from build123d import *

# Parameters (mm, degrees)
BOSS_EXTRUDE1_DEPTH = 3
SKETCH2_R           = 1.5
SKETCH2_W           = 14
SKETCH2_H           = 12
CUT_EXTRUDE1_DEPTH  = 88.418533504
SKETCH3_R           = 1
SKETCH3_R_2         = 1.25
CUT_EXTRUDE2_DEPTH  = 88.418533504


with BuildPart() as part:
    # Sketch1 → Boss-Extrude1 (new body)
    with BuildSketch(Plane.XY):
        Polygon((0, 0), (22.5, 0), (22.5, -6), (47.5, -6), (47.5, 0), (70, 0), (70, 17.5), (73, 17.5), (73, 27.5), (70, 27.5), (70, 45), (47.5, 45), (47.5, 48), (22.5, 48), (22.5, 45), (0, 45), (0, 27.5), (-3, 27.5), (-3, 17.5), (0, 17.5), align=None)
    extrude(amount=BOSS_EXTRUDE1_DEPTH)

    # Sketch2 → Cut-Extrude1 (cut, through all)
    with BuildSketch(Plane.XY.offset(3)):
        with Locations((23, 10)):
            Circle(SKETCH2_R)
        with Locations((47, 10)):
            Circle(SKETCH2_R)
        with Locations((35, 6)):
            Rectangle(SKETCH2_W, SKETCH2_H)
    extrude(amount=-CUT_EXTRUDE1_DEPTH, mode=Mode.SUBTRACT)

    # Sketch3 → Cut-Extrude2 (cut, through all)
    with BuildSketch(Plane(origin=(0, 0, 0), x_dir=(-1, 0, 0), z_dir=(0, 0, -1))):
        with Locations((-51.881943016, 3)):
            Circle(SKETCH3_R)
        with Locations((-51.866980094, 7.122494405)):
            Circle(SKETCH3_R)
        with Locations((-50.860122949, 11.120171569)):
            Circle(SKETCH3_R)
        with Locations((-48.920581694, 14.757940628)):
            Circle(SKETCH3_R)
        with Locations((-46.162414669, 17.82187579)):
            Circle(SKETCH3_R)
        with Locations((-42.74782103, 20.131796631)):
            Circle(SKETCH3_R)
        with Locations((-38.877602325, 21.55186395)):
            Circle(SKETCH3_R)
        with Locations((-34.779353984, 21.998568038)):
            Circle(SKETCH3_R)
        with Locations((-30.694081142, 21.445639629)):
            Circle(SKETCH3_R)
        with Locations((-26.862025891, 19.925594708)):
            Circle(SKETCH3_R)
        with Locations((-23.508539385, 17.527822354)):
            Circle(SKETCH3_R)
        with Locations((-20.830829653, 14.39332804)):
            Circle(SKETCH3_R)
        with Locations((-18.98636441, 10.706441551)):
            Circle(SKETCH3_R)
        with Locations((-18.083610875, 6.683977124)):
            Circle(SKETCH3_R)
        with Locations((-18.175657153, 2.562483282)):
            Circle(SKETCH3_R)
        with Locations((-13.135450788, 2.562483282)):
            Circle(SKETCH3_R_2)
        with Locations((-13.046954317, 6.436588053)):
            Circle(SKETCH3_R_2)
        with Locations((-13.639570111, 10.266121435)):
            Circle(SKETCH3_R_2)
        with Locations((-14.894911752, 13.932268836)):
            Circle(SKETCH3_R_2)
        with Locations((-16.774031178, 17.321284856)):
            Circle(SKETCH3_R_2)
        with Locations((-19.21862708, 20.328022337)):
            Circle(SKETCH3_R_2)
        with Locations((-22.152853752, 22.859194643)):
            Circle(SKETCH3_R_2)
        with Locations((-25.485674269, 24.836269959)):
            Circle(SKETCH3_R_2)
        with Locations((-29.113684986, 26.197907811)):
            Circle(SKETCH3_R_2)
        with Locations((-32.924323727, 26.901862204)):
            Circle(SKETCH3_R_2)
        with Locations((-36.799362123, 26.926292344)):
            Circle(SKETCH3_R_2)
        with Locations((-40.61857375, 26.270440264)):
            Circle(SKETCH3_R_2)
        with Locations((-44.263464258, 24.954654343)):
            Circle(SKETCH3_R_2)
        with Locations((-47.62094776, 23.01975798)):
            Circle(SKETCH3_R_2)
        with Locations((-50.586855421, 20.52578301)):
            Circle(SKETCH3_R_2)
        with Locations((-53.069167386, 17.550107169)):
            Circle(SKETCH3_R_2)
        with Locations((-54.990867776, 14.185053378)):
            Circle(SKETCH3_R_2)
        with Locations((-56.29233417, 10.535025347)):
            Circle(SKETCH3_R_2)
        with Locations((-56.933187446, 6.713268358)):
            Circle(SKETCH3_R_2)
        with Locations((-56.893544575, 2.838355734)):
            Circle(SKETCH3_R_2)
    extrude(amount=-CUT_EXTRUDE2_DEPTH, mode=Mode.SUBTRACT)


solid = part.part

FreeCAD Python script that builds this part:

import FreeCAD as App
import Part
import Sketcher
Q = App.Units.Quantity

doc = App.newDocument("Part")
body = doc.addObject("PartDesign::Body", "Body")

# Sketch on XY plane
sketch1 = doc.addObject("Sketcher::SketchObject", "Sketch")
body.addObject(sketch1)
sketch1.AttachmentSupport = (doc.XY_Plane, [""])
sketch1.MapMode = "FlatFace"
sketch1.addGeometry([
    Part.LineSegment(App.Vector(0, 0, 0), App.Vector(22.5, 0, 0)),  # 0
    Part.LineSegment(App.Vector(22.5, 0, 0), App.Vector(22.5, -6, 0)),  # 1
    Part.LineSegment(App.Vector(22.5, -6, 0), App.Vector(47.5, -6, 0)),  # 2
    Part.LineSegment(App.Vector(47.5, -6, 0), App.Vector(47.5, 0, 0)),  # 3
    Part.LineSegment(App.Vector(47.5, 0, 0), App.Vector(70, 0, 0)),  # 4
    Part.LineSegment(App.Vector(70, 0, 0), App.Vector(70, 17.5, 0)),  # 5
    Part.LineSegment(App.Vector(70, 17.5, 0), App.Vector(73, 17.5, 0)),  # 6
    Part.LineSegment(App.Vector(73, 17.5, 0), App.Vector(73, 27.5, 0)),  # 7
    Part.LineSegment(App.Vector(73, 27.5, 0), App.Vector(70, 27.5, 0)),  # 8
    Part.LineSegment(App.Vector(70, 27.5, 0), App.Vector(70, 45, 0)),  # 9
    Part.LineSegment(App.Vector(70, 45, 0), App.Vector(47.5, 45, 0)),  # 10
    Part.LineSegment(App.Vector(47.5, 45, 0), App.Vector(47.5, 48, 0)),  # 11
    Part.LineSegment(App.Vector(47.5, 48, 0), App.Vector(22.5, 48, 0)),  # 12
    Part.LineSegment(App.Vector(22.5, 48, 0), App.Vector(22.5, 45, 0)),  # 13
    Part.LineSegment(App.Vector(22.5, 45, 0), App.Vector(0, 45, 0)),  # 14
    Part.LineSegment(App.Vector(0, 45, 0), App.Vector(0, 27.5, 0)),  # 15
    Part.LineSegment(App.Vector(0, 27.5, 0), App.Vector(-3, 27.5, 0)),  # 16
    Part.LineSegment(App.Vector(-3, 27.5, 0), App.Vector(-3, 17.5, 0)),  # 17
    Part.LineSegment(App.Vector(-3, 17.5, 0), App.Vector(0, 17.5, 0)),  # 18
    Part.LineSegment(App.Vector(0, 17.5, 0), App.Vector(0, 0, 0)),  # 19
], False)
sketch1.addConstraint([
    Sketcher.Constraint("Coincident", 0, 2, 1, 1),
    Sketcher.Constraint("Coincident", 1, 2, 2, 1),
    Sketcher.Constraint("Coincident", 2, 2, 3, 1),
    Sketcher.Constraint("Coincident", 3, 2, 4, 1),
    Sketcher.Constraint("Coincident", 4, 2, 5, 1),
    Sketcher.Constraint("Coincident", 5, 2, 6, 1),
    Sketcher.Constraint("Coincident", 6, 2, 7, 1),
    Sketcher.Constraint("Coincident", 7, 2, 8, 1),
    Sketcher.Constraint("Coincident", 8, 2, 9, 1),
    Sketcher.Constraint("Coincident", 9, 2, 10, 1),
    Sketcher.Constraint("Coincident", 10, 2, 11, 1),
    Sketcher.Constraint("Coincident", 11, 2, 12, 1),
    Sketcher.Constraint("Coincident", 12, 2, 13, 1),
    Sketcher.Constraint("Coincident", 13, 2, 14, 1),
    Sketcher.Constraint("Coincident", 14, 2, 15, 1),
    Sketcher.Constraint("Coincident", 15, 2, 16, 1),
    Sketcher.Constraint("Coincident", 16, 2, 17, 1),
    Sketcher.Constraint("Coincident", 17, 2, 18, 1),
    Sketcher.Constraint("Coincident", 18, 2, 19, 1),
    Sketcher.Constraint("Coincident", 19, 2, 0, 1),
    Sketcher.Constraint("Horizontal", 0),
    Sketcher.Constraint("Vertical", 1),
    Sketcher.Constraint("Horizontal", 2),
    Sketcher.Constraint("Vertical", 3),
    Sketcher.Constraint("Horizontal", 4),
    Sketcher.Constraint("Vertical", 5),
    Sketcher.Constraint("Horizontal", 6),
    Sketcher.Constraint("Vertical", 7),
    Sketcher.Constraint("Horizontal", 8),
    Sketcher.Constraint("Vertical", 9),
    Sketcher.Constraint("Horizontal", 10),
    Sketcher.Constraint("Vertical", 11),
    Sketcher.Constraint("Horizontal", 12),
    Sketcher.Constraint("Vertical", 13),
    Sketcher.Constraint("Horizontal", 14),
    Sketcher.Constraint("Vertical", 15),
    Sketcher.Constraint("Horizontal", 16),
    Sketcher.Constraint("Vertical", 17),
    Sketcher.Constraint("Horizontal", 18),
    Sketcher.Constraint("Vertical", 19),
    Sketcher.Constraint("Coincident", 19, 2, -1, 1),
    Sketcher.Constraint("PointOnObject", 3, 2, -1),
    Sketcher.Constraint("PointOnObject", 14, 2, -2),
    Sketcher.Constraint("Horizontal", 10, 2, 13, 2),
    Sketcher.Constraint("Horizontal", 8, 2, 15, 2),
    Sketcher.Constraint("Horizontal", 6, 2, 17, 2),
    Sketcher.Constraint("Vertical", 5, 2, 8, 2),
    Sketcher.Constraint("Vertical", 3, 2, 10, 2),
    Sketcher.Constraint("Vertical", 1, 2, 12, 2),
    Sketcher.Constraint("Equal", 0, 4),
    Sketcher.Constraint("Equal", 8, 16),
    Sketcher.Constraint("Equal", 5, 9),
    Sketcher.Constraint("Equal", 18, 11),
    Sketcher.Constraint("DistanceX", 2, 1, 2, 2, Q("25 mm")),
    Sketcher.Constraint("DistanceX", 6, 1, 6, 2, Q("3 mm")),
    Sketcher.Constraint("DistanceY", 1, 2, 1, 1, Q("6 mm")),
    Sketcher.Constraint("DistanceY", 7, 1, 7, 2, Q("10 mm")),
    Sketcher.Constraint("DistanceX", 0, 1, 0, 2, Q("22.5 mm")),
    Sketcher.Constraint("DistanceY", 5, 1, 5, 2, Q("17.5 mm")),
])
pad1 = doc.addObject("PartDesign::Pad", "Pad")
body.addObject(pad1)
pad1.Profile = sketch1
pad1.Length = 3

# Sketch on XY plane
sketch2 = doc.addObject("Sketcher::SketchObject", "Sketch001")
body.addObject(sketch2)
sketch2.AttachmentSupport = (doc.XY_Plane, [""])
sketch2.MapMode = "FlatFace"
sketch2.AttachmentOffset = App.Placement(App.Vector(0, 0, 3), App.Rotation())
sketch2.addGeometry([
    Part.Circle(App.Vector(23, 10, 0), App.Vector(0, 0, 1), 1.5),  # 0
    Part.Circle(App.Vector(47, 10, 0), App.Vector(0, 0, 1), 1.5),  # 1
    Part.LineSegment(App.Vector(28, 12, 0), App.Vector(28, 0, 0)),  # 2
    Part.LineSegment(App.Vector(28, 0, 0), App.Vector(42, 0, 0)),  # 3
    Part.LineSegment(App.Vector(42, 0, 0), App.Vector(42, 12, 0)),  # 4
    Part.LineSegment(App.Vector(42, 12, 0), App.Vector(28, 12, 0)),  # 5
], False)
sketch2.addConstraint([
    Sketcher.Constraint("Coincident", 2, 2, 3, 1),
    Sketcher.Constraint("Coincident", 3, 2, 4, 1),
    Sketcher.Constraint("Coincident", 4, 2, 5, 1),
    Sketcher.Constraint("Coincident", 5, 2, 2, 1),
    Sketcher.Constraint("Vertical", 2),
    Sketcher.Constraint("Horizontal", 3),
    Sketcher.Constraint("Vertical", 4),
    Sketcher.Constraint("Horizontal", 5),
    Sketcher.Constraint("Equal", 0, 1),
    Sketcher.Constraint("PointOnObject", 2, 2, -1),
    Sketcher.Constraint("Horizontal", 0, 3, 1, 3),
    Sketcher.Constraint("Diameter", 0, Q("3 mm")),
    Sketcher.Constraint("DistanceX", 3, 1, 3, 2, Q("14 mm")),
    Sketcher.Constraint("DistanceY", 2, 2, 2, 1, Q("12 mm")),
    Sketcher.Constraint("DistanceX", -1, 1, 0, 3, Q("23 mm")),
    Sketcher.Constraint("DistanceY", -1, 1, 0, 3, Q("10 mm")),
    Sketcher.Constraint("DistanceX", -1, 1, 1, 3, Q("47 mm")),
    Sketcher.Constraint("DistanceX", -1, 1, 2, 2, Q("28 mm")),
])
pocket1 = doc.addObject("PartDesign::Pocket", "Pocket")
body.addObject(pocket1)
pocket1.Profile = sketch2
pocket1.Type = "ThroughAll"

# Sketch on XY plane
sketch3 = doc.addObject("Sketcher::SketchObject", "Sketch002")
body.addObject(sketch3)
sketch3.AttachmentSupport = (doc.XY_Plane, [""])
sketch3.MapMode = "FlatFace"
sketch3.addGeometry([
    Part.Circle(App.Vector(51.9, 3, 0), App.Vector(0, 0, 1), 1),  # 0
    Part.Circle(App.Vector(51.9, 7.1, 0), App.Vector(0, 0, 1), 1),  # 1
    Part.Circle(App.Vector(50.9, 11.1, 0), App.Vector(0, 0, 1), 1),  # 2
    Part.Circle(App.Vector(48.9, 14.8, 0), App.Vector(0, 0, 1), 1),  # 3
    Part.Circle(App.Vector(46.2, 17.8, 0), App.Vector(0, 0, 1), 1),  # 4
    Part.Circle(App.Vector(42.7, 20.1, 0), App.Vector(0, 0, 1), 1),  # 5
    Part.Circle(App.Vector(38.9, 21.6, 0), App.Vector(0, 0, 1), 1),  # 6
    Part.Circle(App.Vector(34.8, 22, 0), App.Vector(0, 0, 1), 1),  # 7
    Part.Circle(App.Vector(30.7, 21.4, 0), App.Vector(0, 0, 1), 1),  # 8
    Part.Circle(App.Vector(26.9, 19.9, 0), App.Vector(0, 0, 1), 1),  # 9
    Part.Circle(App.Vector(23.5, 17.5, 0), App.Vector(0, 0, 1), 1),  # 10
    Part.Circle(App.Vector(20.8, 14.4, 0), App.Vector(0, 0, 1), 1),  # 11
    Part.Circle(App.Vector(19, 10.7, 0), App.Vector(0, 0, 1), 1),  # 12
    Part.Circle(App.Vector(18.1, 6.7, 0), App.Vector(0, 0, 1), 1),  # 13
    Part.Circle(App.Vector(18.2, 2.6, 0), App.Vector(0, 0, 1), 1),  # 14
    Part.Circle(App.Vector(13.1, 2.6, 0), App.Vector(0, 0, 1), 1.2),  # 15
    Part.Circle(App.Vector(13, 6.4, 0), App.Vector(0, 0, 1), 1.2),  # 16
    Part.Circle(App.Vector(13.6, 10.3, 0), App.Vector(0, 0, 1), 1.2),  # 17
    Part.Circle(App.Vector(14.9, 13.9, 0), App.Vector(0, 0, 1), 1.2),  # 18
    Part.Circle(App.Vector(16.8, 17.3, 0), App.Vector(0, 0, 1), 1.2),  # 19
    Part.Circle(App.Vector(19.2, 20.3, 0), App.Vector(0, 0, 1), 1.2),  # 20
    Part.Circle(App.Vector(22.2, 22.9, 0), App.Vector(0, 0, 1), 1.2),  # 21
    Part.Circle(App.Vector(25.5, 24.8, 0), App.Vector(0, 0, 1), 1.2),  # 22
    Part.Circle(App.Vector(29.1, 26.2, 0), App.Vector(0, 0, 1), 1.2),  # 23
    Part.Circle(App.Vector(32.9, 26.9, 0), App.Vector(0, 0, 1), 1.2),  # 24
    Part.Circle(App.Vector(36.8, 26.9, 0), App.Vector(0, 0, 1), 1.2),  # 25
    Part.Circle(App.Vector(40.6, 26.3, 0), App.Vector(0, 0, 1), 1.2),  # 26
    Part.Circle(App.Vector(44.3, 25, 0), App.Vector(0, 0, 1), 1.2),  # 27
    Part.Circle(App.Vector(47.6, 23, 0), App.Vector(0, 0, 1), 1.2),  # 28
    Part.Circle(App.Vector(50.6, 20.5, 0), App.Vector(0, 0, 1), 1.2),  # 29
    Part.Circle(App.Vector(53.1, 17.6, 0), App.Vector(0, 0, 1), 1.2),  # 30
    Part.Circle(App.Vector(55, 14.2, 0), App.Vector(0, 0, 1), 1.2),  # 31
    Part.Circle(App.Vector(56.3, 10.5, 0), App.Vector(0, 0, 1), 1.2),  # 32
    Part.Circle(App.Vector(56.9, 6.7, 0), App.Vector(0, 0, 1), 1.2),  # 33
    Part.Circle(App.Vector(56.9, 2.8, 0), App.Vector(0, 0, 1), 1.2),  # 34
], False)
sketch3.addConstraint([
    Sketcher.Constraint("Equal", 0, 1),
    Sketcher.Constraint("Equal", 1, 2),
    Sketcher.Constraint("Equal", 2, 3),
    Sketcher.Constraint("Equal", 3, 4),
    Sketcher.Constraint("Equal", 4, 5),
    Sketcher.Constraint("Equal", 5, 6),
    Sketcher.Constraint("Equal", 6, 7),
    Sketcher.Constraint("Equal", 7, 8),
    Sketcher.Constraint("Equal", 8, 9),
    Sketcher.Constraint("Equal", 9, 10),
    Sketcher.Constraint("Equal", 10, 11),
    Sketcher.Constraint("Equal", 11, 12),
    Sketcher.Constraint("Equal", 12, 13),
    Sketcher.Constraint("Equal", 13, 14),
    Sketcher.Constraint("Equal", 15, 16),
    Sketcher.Constraint("Equal", 16, 17),
    Sketcher.Constraint("Equal", 17, 18),
    Sketcher.Constraint("Equal", 18, 19),
    Sketcher.Constraint("Equal", 19, 20),
    Sketcher.Constraint("Equal", 20, 21),
    Sketcher.Constraint("Equal", 21, 22),
    Sketcher.Constraint("Equal", 22, 23),
    Sketcher.Constraint("Equal", 23, 24),
    Sketcher.Constraint("Equal", 24, 25),
    Sketcher.Constraint("Equal", 25, 26),
    Sketcher.Constraint("Equal", 26, 27),
    Sketcher.Constraint("Equal", 27, 28),
    Sketcher.Constraint("Equal", 28, 29),
    Sketcher.Constraint("Equal", 29, 30),
    Sketcher.Constraint("Equal", 30, 31),
    Sketcher.Constraint("Equal", 31, 32),
    Sketcher.Constraint("Equal", 32, 33),
    Sketcher.Constraint("Equal", 33, 34),
    Sketcher.Constraint("Horizontal", 14, 3, 15, 3),
    Sketcher.Constraint("Diameter", 0, Q("2 mm")),
    Sketcher.Constraint("Diameter", 15, Q("2.5 mm")),
    Sketcher.Constraint("DistanceY", -1, 1, 0, 3, Q("3 mm")),
    Sketcher.Constraint("DistanceY", 6, 3, 24, 3, Q("5.349998 mm")),
    Sketcher.Constraint("DistanceX", 3, 3, 1, 3, Q("2.946398 mm")),
    Sketcher.Constraint("DistanceX", 5, 3, 2, 3, Q("8.112302 mm")),
    Sketcher.Constraint("DistanceX", 8, 3, 3, 3, Q("18.226501 mm")),
    Sketcher.Constraint("DistanceY", 3, 3, 8, 3, Q("6.687699 mm")),
    Sketcher.Constraint("DistanceY", 9, 3, 5, 3, Q("0.206202 mm")),
    Sketcher.Constraint("DistanceY", 12, 3, 8, 3, Q("10.739198 mm")),
    Sketcher.Constraint("DistanceX", 18, 3, 13, 3, Q("3.188699 mm")),
    Sketcher.Constraint("DistanceX", 19, 3, 11, 3, Q("4.056798 mm")),
    Sketcher.Constraint("DistanceY", 10, 3, 20, 3, Q("2.8002 mm")),
    Sketcher.Constraint("DistanceX", 20, 3, 9, 3, Q("7.643399 mm")),
    Sketcher.Constraint("DistanceY", 9, 3, 21, 3, Q("2.9336 mm")),
    Sketcher.Constraint("DistanceX", 30, 3, 31, 3, Q("1.9217 mm")),
    Sketcher.Constraint("DistanceX", 0, 3, 34, 3, Q("5.011602 mm")),
    Sketcher.Constraint("DistanceX", -1, 1, 1, 3, Q("51.86698 mm")),
    Sketcher.Constraint("DistanceY", -1, 1, 2, 3, Q("11.120172 mm")),
    Sketcher.Constraint("DistanceY", -1, 1, 3, 3, Q("14.757941 mm")),
    Sketcher.Constraint("DistanceX", -1, 1, 5, 3, Q("42.747821 mm")),
    Sketcher.Constraint("DistanceY", -1, 1, 7, 3, Q("21.998568 mm")),
    Sketcher.Constraint("DistanceX", -1, 1, 10, 3, Q("23.508539 mm")),
    Sketcher.Constraint("DistanceX", -1, 1, 11, 3, Q("20.83083 mm")),
    Sketcher.Constraint("DistanceY", -1, 1, 11, 3, Q("14.393328 mm")),
    Sketcher.Constraint("DistanceX", -1, 1, 13, 3, Q("18.083611 mm")),
    Sketcher.Constraint("DistanceX", -1, 1, 15, 3, Q("13.135451 mm")),
    Sketcher.Constraint("DistanceY", -1, 1, 16, 3, Q("6.436588 mm")),
    Sketcher.Constraint("DistanceX", -1, 1, 17, 3, Q("13.63957 mm")),
    Sketcher.Constraint("DistanceY", -1, 1, 17, 3, Q("10.266121 mm")),
    Sketcher.Constraint("DistanceY", -1, 1, 18, 3, Q("13.932269 mm")),
    Sketcher.Constraint("DistanceY", -1, 1, 22, 3, Q("24.83627 mm")),
    Sketcher.Constraint("DistanceY", -1, 1, 26, 3, Q("26.27044 mm")),
    Sketcher.Constraint("DistanceY", -1, 1, 33, 3, Q("6.713268 mm")),
    Sketcher.Constraint("DistanceX", 2, 3, 0, 3, Q("1.02182 mm")),
    Sketcher.Constraint("DistanceX", 4, 3, 2, 3, Q("4.697708 mm")),
    Sketcher.Constraint("DistanceY", 1, 3, 4, 3, Q("10.699381 mm")),
    Sketcher.Constraint("DistanceY", 4, 3, 5, 3, Q("2.309921 mm")),
    Sketcher.Constraint("DistanceX", 6, 3, 5, 3, Q("3.870219 mm")),
    Sketcher.Constraint("DistanceY", 4, 3, 6, 3, Q("3.729988 mm")),
    Sketcher.Constraint("DistanceX", 7, 3, 6, 3, Q("4.098248 mm")),
    Sketcher.Constraint("DistanceY", 5, 3, 7, 3, Q("1.866771 mm")),
    Sketcher.Constraint("DistanceX", 9, 3, 7, 3, Q("7.917328 mm")),
    Sketcher.Constraint("DistanceY", 10, 3, 6, 3, Q("4.024042 mm")),
    Sketcher.Constraint("DistanceX", 12, 3, 9, 3, Q("7.875661 mm")),
    Sketcher.Constraint("DistanceY", 13, 3, 11, 3, Q("7.709351 mm")),
    Sketcher.Constraint("DistanceY", 14, 3, 12, 3, Q("8.143958 mm")),
    Sketcher.Constraint("DistanceX", 14, 3, 9, 3, Q("8.686369 mm")),
    Sketcher.Constraint("DistanceX", 16, 3, 12, 3, Q("5.93941 mm")),
    Sketcher.Constraint("DistanceY", 19, 3, 21, 3, Q("5.53791 mm")),
    Sketcher.Constraint("DistanceX", 21, 3, 22, 3, Q("3.332821 mm")),
    Sketcher.Constraint("DistanceX", 22, 3, 9, 3, Q("1.376352 mm")),
    Sketcher.Constraint("DistanceX", 22, 3, 23, 3, Q("3.628011 mm")),
    Sketcher.Constraint("DistanceY", 8, 3, 23, 3, Q("4.752268 mm")),
    Sketcher.Constraint("DistanceX", 23, 3, 24, 3, Q("3.810639 mm")),
    Sketcher.Constraint("DistanceX", 24, 3, 25, 3, Q("3.875038 mm")),
    Sketcher.Constraint("DistanceY", 24, 3, 25, 3, Q("0.02443 mm")),
    Sketcher.Constraint("DistanceX", 25, 3, 26, 3, Q("3.819212 mm")),
    Sketcher.Constraint("DistanceX", 26, 3, 27, 3, Q("3.644891 mm")),
    Sketcher.Constraint("DistanceY", 6, 3, 27, 3, Q("3.40279 mm")),
    Sketcher.Constraint("DistanceY", 5, 3, 28, 3, Q("2.887961 mm")),
    Sketcher.Constraint("DistanceX", 4, 3, 29, 3, Q("4.424441 mm")),
    Sketcher.Constraint("DistanceY", 29, 3, 27, 3, Q("4.428871 mm")),
    Sketcher.Constraint("DistanceX", 29, 3, 30, 3, Q("2.482312 mm")),
    Sketcher.Constraint("DistanceY", 30, 3, 4, 3, Q("0.271769 mm")),
    Sketcher.Constraint("DistanceX", 28, 3, 30, 3, Q("5.44822 mm")),
    Sketcher.Constraint("DistanceY", 2, 3, 31, 3, Q("3.064882 mm")),
    Sketcher.Constraint("DistanceY", 32, 3, 31, 3, Q("3.650028 mm")),
    Sketcher.Constraint("DistanceX", 2, 3, 32, 3, Q("5.432211 mm")),
    Sketcher.Constraint("DistanceX", 31, 3, 33, 3, Q("1.94232 mm")),
    Sketcher.Constraint("DistanceY", 34, 3, 1, 3, Q("4.284139 mm")),
])
pocket2 = doc.addObject("PartDesign::Pocket", "Pocket001")
body.addObject(pocket2)
pocket2.Profile = sketch3
pocket2.Type = "ThroughAll"
pocket2.Reversed = True

doc.recompute()
